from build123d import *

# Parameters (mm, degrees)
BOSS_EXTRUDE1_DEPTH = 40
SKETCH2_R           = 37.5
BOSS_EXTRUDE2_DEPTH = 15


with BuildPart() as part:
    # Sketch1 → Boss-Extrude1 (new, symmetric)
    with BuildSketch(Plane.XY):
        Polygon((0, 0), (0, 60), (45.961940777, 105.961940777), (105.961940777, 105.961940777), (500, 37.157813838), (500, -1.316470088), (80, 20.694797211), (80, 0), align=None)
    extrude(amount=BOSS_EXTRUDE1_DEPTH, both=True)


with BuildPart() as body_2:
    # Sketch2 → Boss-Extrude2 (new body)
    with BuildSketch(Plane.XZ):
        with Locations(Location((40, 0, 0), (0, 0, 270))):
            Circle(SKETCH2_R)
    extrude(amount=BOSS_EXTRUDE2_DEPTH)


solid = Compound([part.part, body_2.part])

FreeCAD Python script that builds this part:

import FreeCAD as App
import Part
import Sketcher

V = App.Vector
Q = App.Units.Quantity


def add_polygon(sketch, points):
    """Adds a closed chain of lines whose ends are joined by coincident constraints."""
    first, n = sketch.GeometryCount, len(points)
    for a, b in zip(points, points[1:] + points[:1]):
        sketch.addGeometry(Part.LineSegment(App.Vector(*a, 0), App.Vector(*b, 0)), False)
    for i in range(n):
        sketch.addConstraint(Sketcher.Constraint("Coincident", first + i, 2, first + (i + 1) % n, 1))

doc = App.newDocument("Part")
params = doc.addObject("Spreadsheet::Sheet", "Params")
for row, (alias, value) in enumerate([
    ("sketch1_width", "80 mm"),
    ("sketch1_width2", "60 mm"),
    ("sketch1_length", "400 mm"),
    ("sketch1_length2", "65 mm"),
    ("pad1_length", "80 mm"),
    ("sketch2_diameter", "75 mm"),
    ("pad2_length", "15 mm"),
], start=1):
    params.set(f"A{row}", alias)
    params.set(f"B{row}", "=" + value)
    params.setAlias(f"B{row}", alias)

body = doc.addObject("PartDesign::Body", "Body")

# Sketch on XY plane
sketch1 = body.newObject("Sketcher::SketchObject", "Sketch")
sketch1.AttachmentSupport = (doc.getObject("XY_Plane"), [""])
sketch1.MapMode = "FlatFace"
add_polygon(sketch1, [(0, 60), (0, 0), (80, 0), (80, 21), (500, -1), (500, 37), (106, 106), (46, 106)])  # lines 0-7
sketch1.addConstraint([
    Sketcher.Constraint("Vertical", 0),
    Sketcher.Constraint("Horizontal", 1),
    Sketcher.Constraint("Vertical", 2),
    Sketcher.Constraint("Vertical", 4),
    Sketcher.Constraint("Horizontal", 6),
    Sketcher.Constraint("Coincident", 0, 2, -1, 1),
    Sketcher.Constraint("Equal", 6, 0),
    Sketcher.Constraint("DistanceX", 1, 1, 1, 2, 80.0),
    Sketcher.Constraint("DistanceX", 6, 2, 6, 1, 60.0),
    Sketcher.Constraint("Angle", 3, Q("-3 deg")),
    Sketcher.Constraint("Angle", 7, Q("-135 deg")),
    Sketcher.Constraint("Distance", 5, 400.0),
    Sketcher.Constraint("Distance", 7, 65.0),
    Sketcher.Constraint("DistanceX", -1, 1, 3, 2, 500.0),
    Sketcher.Constraint("DistanceY", 2, 1, 2, 2, 20.694797),
])
sketch1.setExpression("Constraints[15]", "Params.sketch1_width")
sketch1.setExpression("Constraints[16]", "Params.sketch1_width2")
sketch1.setExpression("Constraints[19]", "Params.sketch1_length")
sketch1.setExpression("Constraints[20]", "Params.sketch1_length2")
pad1 = body.newObject("PartDesign::Pad", "Pad")
pad1.Profile = sketch1
pad1.setExpression("Length", "Params.pad1_length")
pad1.Midplane = True
body2 = doc.addObject("PartDesign::Body", "Body001")

# Sketch on XZ plane
sketch2 = body2.newObject("Sketcher::SketchObject", "Sketch001")
sketch2.AttachmentSupport = (doc.getObject("XZ_Plane001"), [""])
sketch2.MapMode = "FlatFace"
sketch2.addGeometry(Part.Circle(V(40, 0, 0), V(0, 0, 1), 38), False)
sketch2.addConstraint([
    Sketcher.Constraint("PointOnObject", 0, 3, -1),
    Sketcher.Constraint("Diameter", 0, 75.0),
    Sketcher.Constraint("DistanceX", -1, 1, 0, 3, 40.0),
])
sketch2.setExpression("Constraints[1]", "Params.sketch2_diameter")
pad2 = body2.newObject("PartDesign::Pad", "Pad001")
pad2.Profile = sketch2
pad2.setExpression("Length", "Params.pad2_length")

doc.recompute()
